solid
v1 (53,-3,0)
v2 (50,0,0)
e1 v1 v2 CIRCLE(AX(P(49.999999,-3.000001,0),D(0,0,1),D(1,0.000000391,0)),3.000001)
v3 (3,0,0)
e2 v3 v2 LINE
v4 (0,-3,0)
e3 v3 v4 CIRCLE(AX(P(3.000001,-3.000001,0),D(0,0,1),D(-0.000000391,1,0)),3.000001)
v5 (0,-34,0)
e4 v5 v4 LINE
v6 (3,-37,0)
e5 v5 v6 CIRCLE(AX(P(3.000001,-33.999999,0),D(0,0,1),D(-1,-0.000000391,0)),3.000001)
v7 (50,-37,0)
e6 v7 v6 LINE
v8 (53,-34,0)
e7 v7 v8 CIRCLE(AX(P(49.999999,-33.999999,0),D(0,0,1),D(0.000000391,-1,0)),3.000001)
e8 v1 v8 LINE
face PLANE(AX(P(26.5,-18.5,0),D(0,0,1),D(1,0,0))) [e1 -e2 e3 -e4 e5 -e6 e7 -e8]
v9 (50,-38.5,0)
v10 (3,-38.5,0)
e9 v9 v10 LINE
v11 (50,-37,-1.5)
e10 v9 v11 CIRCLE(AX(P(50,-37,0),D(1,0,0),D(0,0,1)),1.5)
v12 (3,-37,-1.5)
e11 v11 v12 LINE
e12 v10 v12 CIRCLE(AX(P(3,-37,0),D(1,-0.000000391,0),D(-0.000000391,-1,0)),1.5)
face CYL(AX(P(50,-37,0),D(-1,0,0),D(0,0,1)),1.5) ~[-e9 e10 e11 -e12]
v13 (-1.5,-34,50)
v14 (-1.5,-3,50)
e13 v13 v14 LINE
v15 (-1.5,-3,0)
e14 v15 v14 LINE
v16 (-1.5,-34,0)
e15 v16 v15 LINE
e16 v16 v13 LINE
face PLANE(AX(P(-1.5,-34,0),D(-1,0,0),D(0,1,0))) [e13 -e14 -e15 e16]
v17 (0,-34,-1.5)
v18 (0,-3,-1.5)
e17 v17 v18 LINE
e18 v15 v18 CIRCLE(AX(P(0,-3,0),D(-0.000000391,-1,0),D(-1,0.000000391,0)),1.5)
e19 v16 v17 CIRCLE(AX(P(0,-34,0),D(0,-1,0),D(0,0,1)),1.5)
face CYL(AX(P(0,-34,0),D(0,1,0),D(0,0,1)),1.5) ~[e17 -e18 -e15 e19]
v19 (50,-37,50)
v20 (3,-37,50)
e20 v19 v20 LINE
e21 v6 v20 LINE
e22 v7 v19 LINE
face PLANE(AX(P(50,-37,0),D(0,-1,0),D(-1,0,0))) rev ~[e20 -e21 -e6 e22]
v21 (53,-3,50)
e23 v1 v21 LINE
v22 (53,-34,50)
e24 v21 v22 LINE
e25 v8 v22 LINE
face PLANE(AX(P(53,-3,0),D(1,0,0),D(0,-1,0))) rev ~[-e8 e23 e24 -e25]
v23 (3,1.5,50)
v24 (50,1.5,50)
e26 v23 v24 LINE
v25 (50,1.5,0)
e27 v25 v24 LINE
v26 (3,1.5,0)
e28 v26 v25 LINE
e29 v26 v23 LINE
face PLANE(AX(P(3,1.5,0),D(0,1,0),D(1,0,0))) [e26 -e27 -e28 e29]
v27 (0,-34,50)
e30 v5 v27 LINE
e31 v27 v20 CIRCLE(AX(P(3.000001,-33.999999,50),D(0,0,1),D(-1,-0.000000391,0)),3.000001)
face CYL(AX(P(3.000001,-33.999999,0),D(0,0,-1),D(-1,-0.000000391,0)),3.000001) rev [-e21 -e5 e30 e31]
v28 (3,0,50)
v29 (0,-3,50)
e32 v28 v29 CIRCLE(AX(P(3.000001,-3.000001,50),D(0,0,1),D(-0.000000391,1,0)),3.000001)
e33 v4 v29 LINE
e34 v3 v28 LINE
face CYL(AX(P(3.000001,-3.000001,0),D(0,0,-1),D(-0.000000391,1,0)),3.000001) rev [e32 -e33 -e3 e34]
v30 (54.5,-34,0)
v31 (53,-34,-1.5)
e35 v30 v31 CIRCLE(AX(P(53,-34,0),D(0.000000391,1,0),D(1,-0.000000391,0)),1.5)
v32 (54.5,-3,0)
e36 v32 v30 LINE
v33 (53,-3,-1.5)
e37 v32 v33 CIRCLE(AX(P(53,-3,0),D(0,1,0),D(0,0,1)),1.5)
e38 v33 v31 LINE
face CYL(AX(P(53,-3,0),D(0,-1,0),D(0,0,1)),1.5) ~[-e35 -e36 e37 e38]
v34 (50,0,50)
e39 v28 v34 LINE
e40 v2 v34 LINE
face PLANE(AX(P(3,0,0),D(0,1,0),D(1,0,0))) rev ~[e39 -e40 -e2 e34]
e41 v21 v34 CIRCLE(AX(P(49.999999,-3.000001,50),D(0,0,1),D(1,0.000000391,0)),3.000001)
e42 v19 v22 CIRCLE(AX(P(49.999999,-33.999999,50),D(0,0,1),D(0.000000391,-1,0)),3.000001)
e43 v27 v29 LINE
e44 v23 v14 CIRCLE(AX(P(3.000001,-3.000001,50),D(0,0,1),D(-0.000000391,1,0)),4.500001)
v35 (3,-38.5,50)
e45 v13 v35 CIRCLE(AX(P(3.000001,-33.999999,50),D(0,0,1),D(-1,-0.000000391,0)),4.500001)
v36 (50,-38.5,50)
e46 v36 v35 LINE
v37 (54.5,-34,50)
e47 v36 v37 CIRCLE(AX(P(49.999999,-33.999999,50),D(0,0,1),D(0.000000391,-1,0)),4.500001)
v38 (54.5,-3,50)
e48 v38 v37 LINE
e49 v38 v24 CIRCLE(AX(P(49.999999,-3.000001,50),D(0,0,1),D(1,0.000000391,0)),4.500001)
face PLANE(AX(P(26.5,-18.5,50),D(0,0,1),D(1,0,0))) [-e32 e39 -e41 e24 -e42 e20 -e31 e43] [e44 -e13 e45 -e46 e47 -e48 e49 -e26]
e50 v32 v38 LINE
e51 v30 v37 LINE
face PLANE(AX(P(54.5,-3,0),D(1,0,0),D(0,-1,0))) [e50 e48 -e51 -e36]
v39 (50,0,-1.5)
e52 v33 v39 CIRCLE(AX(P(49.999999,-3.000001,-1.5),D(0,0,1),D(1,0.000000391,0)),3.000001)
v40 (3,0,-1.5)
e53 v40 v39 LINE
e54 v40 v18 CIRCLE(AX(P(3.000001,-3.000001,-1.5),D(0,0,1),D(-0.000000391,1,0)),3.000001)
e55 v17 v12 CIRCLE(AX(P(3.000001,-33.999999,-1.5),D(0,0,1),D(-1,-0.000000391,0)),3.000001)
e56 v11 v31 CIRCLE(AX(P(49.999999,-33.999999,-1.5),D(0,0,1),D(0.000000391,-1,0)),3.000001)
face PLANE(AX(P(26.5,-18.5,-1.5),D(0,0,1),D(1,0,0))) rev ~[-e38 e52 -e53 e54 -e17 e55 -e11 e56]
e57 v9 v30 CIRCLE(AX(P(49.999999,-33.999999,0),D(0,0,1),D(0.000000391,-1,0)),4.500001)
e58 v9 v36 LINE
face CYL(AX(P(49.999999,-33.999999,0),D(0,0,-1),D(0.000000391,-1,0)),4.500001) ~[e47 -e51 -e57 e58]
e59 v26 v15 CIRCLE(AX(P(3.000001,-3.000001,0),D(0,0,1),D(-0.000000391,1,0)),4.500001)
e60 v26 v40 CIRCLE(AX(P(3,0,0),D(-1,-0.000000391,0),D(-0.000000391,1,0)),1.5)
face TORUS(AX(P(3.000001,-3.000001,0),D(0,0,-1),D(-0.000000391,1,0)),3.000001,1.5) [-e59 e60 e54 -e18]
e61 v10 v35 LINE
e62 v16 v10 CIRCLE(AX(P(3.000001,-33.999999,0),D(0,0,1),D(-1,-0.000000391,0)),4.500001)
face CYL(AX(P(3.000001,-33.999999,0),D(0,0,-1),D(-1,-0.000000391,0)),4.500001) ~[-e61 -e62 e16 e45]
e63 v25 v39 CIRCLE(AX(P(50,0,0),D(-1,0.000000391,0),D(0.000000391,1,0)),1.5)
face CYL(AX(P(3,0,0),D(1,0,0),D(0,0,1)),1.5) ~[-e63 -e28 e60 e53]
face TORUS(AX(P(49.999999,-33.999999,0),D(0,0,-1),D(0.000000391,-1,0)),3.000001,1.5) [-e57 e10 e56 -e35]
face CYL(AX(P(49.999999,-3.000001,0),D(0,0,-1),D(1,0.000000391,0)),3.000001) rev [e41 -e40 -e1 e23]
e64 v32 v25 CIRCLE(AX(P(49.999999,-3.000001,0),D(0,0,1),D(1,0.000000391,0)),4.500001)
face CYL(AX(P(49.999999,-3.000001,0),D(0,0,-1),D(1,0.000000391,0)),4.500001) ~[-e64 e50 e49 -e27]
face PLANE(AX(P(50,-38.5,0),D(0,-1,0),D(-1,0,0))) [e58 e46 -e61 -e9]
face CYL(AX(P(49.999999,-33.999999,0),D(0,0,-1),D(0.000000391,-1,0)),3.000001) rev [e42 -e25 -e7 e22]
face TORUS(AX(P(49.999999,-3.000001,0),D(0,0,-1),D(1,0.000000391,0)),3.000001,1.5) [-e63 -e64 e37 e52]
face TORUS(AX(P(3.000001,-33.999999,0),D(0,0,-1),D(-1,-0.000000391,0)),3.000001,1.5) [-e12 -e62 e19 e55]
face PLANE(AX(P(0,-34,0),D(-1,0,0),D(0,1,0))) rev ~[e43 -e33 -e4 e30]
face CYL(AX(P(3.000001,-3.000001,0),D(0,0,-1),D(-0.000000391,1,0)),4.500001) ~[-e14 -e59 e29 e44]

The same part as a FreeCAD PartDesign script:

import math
import FreeCAD as App
import Part
import Sketcher

V = App.Vector
Q = App.Units.Quantity


def faces_at(feature, points):
    """Names of the faces that lie closest to the given points."""
    faces = feature.Shape.Faces
    near = lambda p: min(range(len(faces)), key=lambda i: faces[i].distToShape(Part.Vertex(*p))[0])
    return sorted({f"Face{near(p) + 1}" for p in points})

doc = App.newDocument("Part")
body = doc.addObject("PartDesign::Body", "Body")

# Sketch on XY plane
sketch1 = body.newObject("Sketcher::SketchObject", "Sketch")
sketch1.AttachmentSupport = (doc.getObject("XY_Plane"), [""])
sketch1.MapMode = "FlatFace"
sketch1.addGeometry([
    Part.ArcOfCircle(Part.Circle(V(3, -3, 0), V(0, 0, 1), 3), math.radians(90), math.radians(180)),  # 0
    Part.LineSegment(V(0, -3, 0), V(0, -34, 0)),  # 1
    Part.ArcOfCircle(Part.Circle(V(3, -34, 0), V(0, 0, 1), 3), math.radians(-180), math.radians(-90)),  # 2
    Part.LineSegment(V(3, -37, 0), V(50, -37, 0)),  # 3
    Part.ArcOfCircle(Part.Circle(V(50, -34, 0), V(0, 0, 1), 3), math.radians(-90), math.radians(0)),  # 4
    Part.LineSegment(V(53, -34, 0), V(53, -3, 0)),  # 5
    Part.ArcOfCircle(Part.Circle(V(50, -3, 0), V(0, 0, 1), 3), math.radians(0), math.radians(90)),  # 6
    Part.LineSegment(V(50, 0, 0), V(3, 0, 0)),  # 7
], False)
sketch1.addConstraint([
    Sketcher.Constraint("Tangent", 0, 2, 1, 1),
    Sketcher.Constraint("Tangent", 1, 2, 2, 1),
    Sketcher.Constraint("Tangent", 2, 2, 3, 1),
    Sketcher.Constraint("Tangent", 3, 2, 4, 1),
    Sketcher.Constraint("Tangent", 4, 2, 5, 1),
    Sketcher.Constraint("Tangent", 5, 2, 6, 1),
    Sketcher.Constraint("Tangent", 6, 2, 7, 1),
    Sketcher.Constraint("Tangent", 7, 2, 0, 1),
    Sketcher.Constraint("Vertical", 1),
    Sketcher.Constraint("Horizontal", 3),
    Sketcher.Constraint("Vertical", 5),
    Sketcher.Constraint("Horizontal", 7),
    Sketcher.Constraint("Equal", 0, 2),
    Sketcher.Constraint("Equal", 2, 4),
    Sketcher.Constraint("Equal", 4, 6),
    Sketcher.Constraint("PointOnObject", 0, 2, -2),
    Sketcher.Constraint("PointOnObject", 6, 2, -1),
    Sketcher.Constraint("Radius", 0, Q("3.000001 mm")),
    Sketcher.Constraint("DistanceX", 3, 1, 3, 2, Q("47 mm")),
    Sketcher.Constraint("DistanceY", 1, 2, 1, 1, Q("31 mm")),
])
pad1 = body.newObject("PartDesign::Pad", "Pad")
pad1.Profile = sketch1
pad1.Length = 50
doc.recompute()

thickness = body.newObject("PartDesign::Thickness", "Thickness")
thickness.Base = (pad1, faces_at(pad1, [(26.5, -18.5, 50)]))
thickness.Value = 1.5
thickness.Reversed = False
thickness.Join = "Arc"

doc.recompute()
